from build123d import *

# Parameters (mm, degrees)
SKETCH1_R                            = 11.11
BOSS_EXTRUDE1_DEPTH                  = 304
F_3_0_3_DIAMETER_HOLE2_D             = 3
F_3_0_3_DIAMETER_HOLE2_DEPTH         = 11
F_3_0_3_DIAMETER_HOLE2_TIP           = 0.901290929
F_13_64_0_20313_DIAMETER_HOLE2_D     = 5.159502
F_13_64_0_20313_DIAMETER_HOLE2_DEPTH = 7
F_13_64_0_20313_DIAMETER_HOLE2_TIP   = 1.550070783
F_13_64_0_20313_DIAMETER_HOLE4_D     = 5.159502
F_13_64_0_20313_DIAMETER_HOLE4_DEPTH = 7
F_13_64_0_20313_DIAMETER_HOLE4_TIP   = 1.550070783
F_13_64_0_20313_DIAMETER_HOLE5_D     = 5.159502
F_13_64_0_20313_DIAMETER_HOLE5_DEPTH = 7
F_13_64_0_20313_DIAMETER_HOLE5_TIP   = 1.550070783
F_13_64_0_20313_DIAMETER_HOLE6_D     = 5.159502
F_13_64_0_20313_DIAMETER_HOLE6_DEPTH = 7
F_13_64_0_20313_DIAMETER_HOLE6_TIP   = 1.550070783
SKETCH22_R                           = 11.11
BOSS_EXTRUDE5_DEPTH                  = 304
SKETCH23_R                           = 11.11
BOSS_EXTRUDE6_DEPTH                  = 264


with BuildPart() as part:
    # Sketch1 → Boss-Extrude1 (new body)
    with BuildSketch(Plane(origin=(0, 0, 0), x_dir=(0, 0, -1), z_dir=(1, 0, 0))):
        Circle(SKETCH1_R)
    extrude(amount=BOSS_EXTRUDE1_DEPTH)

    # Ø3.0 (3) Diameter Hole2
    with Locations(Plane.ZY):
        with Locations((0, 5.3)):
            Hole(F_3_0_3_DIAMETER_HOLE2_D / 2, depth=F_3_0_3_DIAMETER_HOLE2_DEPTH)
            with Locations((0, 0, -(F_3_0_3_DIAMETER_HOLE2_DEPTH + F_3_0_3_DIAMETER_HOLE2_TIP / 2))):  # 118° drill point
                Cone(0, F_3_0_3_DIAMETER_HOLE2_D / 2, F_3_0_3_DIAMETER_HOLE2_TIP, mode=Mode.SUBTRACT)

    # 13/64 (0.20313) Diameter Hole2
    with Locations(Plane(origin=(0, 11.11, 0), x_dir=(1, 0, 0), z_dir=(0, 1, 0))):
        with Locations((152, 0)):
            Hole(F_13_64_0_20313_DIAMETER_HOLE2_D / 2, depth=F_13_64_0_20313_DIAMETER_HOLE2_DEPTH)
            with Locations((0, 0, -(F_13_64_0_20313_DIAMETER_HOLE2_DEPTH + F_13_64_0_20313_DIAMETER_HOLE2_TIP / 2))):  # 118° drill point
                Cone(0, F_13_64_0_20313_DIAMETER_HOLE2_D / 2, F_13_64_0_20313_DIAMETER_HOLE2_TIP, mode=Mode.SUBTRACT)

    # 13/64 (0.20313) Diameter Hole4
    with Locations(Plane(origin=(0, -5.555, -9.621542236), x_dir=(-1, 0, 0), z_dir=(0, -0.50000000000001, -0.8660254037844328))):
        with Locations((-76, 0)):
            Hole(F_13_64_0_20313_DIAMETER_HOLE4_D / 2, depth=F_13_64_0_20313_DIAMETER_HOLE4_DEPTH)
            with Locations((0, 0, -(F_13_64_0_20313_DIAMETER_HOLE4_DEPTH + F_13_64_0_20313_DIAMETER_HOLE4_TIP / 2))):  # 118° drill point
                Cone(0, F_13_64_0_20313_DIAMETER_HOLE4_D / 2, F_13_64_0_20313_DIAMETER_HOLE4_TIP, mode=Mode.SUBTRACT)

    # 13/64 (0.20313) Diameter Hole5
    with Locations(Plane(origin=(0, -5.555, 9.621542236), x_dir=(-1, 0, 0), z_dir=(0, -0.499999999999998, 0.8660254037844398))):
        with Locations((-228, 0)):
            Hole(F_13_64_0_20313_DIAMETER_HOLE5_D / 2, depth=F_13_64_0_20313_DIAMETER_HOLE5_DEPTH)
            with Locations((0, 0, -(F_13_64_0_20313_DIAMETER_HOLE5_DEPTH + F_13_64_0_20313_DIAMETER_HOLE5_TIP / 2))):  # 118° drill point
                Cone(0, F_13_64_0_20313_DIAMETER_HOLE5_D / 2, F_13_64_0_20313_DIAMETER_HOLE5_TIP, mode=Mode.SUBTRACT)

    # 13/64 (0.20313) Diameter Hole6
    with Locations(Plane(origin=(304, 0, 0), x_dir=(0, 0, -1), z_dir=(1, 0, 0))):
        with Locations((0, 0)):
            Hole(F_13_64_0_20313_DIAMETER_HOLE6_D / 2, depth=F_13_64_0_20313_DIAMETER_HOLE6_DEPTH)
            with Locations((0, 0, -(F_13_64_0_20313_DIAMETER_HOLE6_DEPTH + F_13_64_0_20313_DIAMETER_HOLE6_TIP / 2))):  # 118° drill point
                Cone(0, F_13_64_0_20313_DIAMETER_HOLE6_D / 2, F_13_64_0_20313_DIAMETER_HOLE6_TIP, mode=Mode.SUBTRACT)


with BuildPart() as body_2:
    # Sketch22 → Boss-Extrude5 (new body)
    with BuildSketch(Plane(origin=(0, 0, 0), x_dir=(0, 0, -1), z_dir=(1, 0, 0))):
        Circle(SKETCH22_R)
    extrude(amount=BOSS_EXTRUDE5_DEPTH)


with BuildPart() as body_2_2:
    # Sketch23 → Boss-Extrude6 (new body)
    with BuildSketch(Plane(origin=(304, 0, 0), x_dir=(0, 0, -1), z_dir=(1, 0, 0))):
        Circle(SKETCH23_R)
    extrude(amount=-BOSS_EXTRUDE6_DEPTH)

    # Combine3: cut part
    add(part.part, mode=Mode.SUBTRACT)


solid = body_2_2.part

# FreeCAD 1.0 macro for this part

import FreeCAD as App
import Part
import Sketcher

V = App.Vector
Q = App.Units.Quantity

doc = App.newDocument("Part")
params = doc.addObject("Spreadsheet::Sheet", "Params")
for row, (alias, value) in enumerate([
    ("sketch1_diameter", "22.22 mm"),
    ("pad1_length", "304 mm"),
    ("sketch2_diameter", "3 mm"),
    ("hole_diameter", "3 mm"),
    ("hole_depth", "11 mm"),
    ("hole2_diameter", "5.159502 mm"),
    ("hole2_depth", "7 mm"),
    ("hole3_diameter", "5.159502 mm"),
    ("hole3_depth", "7 mm"),
    ("hole4_diameter", "5.159502 mm"),
    ("hole4_depth", "7 mm"),
    ("hole5_diameter", "5.159502 mm"),
    ("hole5_depth", "7 mm"),
    ("sketch7_diameter", "22.22 mm"),
    ("pad2_length", "304 mm"),
    ("sketch8_diameter", "22.22 mm"),
    ("pad3_length", "264 mm"),
], start=1):
    params.set(f"A{row}", alias)
    params.set(f"B{row}", "=" + value)
    params.setAlias(f"B{row}", alias)

body = doc.addObject("PartDesign::Body", "Body")

sketch1 = doc.addObject("Sketcher::SketchObject", "Sketch")
body.addObject(sketch1)
sketch1.AttachmentSupport = (doc.YZ_Plane, [""])
sketch1.MapMode = "FlatFace"
sketch1.addGeometry(Part.Circle(V(0, 0, 0), V(0, 0, 1), 11), False)
sketch1.addConstraint(Sketcher.Constraint("Coincident", 0, 3, -1, 1))
sketch1.addConstraint(Sketcher.Constraint("Diameter", 0, Q("22.22 mm")))
sketch1.setExpression("Constraints[1]", "Params.sketch1_diameter")
pad1 = doc.addObject("PartDesign::Pad", "Pad")
body.addObject(pad1)
pad1.Profile = sketch1
pad1.setExpression("Length", "Params.pad1_length")

sketch2 = doc.addObject("Sketcher::SketchObject", "Sketch001")
body.addObject(sketch2)
sketch2.AttachmentSupport = (doc.YZ_Plane, [""])
sketch2.MapMode = "FlatFace"
sketch2.addGeometry(Part.Circle(V(5.3, 0, 0), V(0, 0, 1), 1.5), False)
sketch2.addConstraint(Sketcher.Constraint("PointOnObject", 0, 3, -1))
sketch2.addConstraint(Sketcher.Constraint("Diameter", 0, Q("3 mm")))
sketch2.addConstraint(Sketcher.Constraint("DistanceX", -1, 1, 0, 3, Q("5.3 mm")))
sketch2.setExpression("Constraints[1]", "Params.sketch2_diameter")
doc.recompute()
hole = doc.addObject("PartDesign::Hole", "Hole")
body.addObject(hole)
hole.Profile = sketch2
hole.ThreadType = "None"
hole.setExpression("Diameter", "Params.hole_diameter")
hole.DepthType = "Dimension"
hole.setExpression("Depth", "Params.hole_depth")
hole.DrillPoint = "Angled"
hole.DrillPointAngle = 118
hole.Reversed = True

sketch3 = doc.addObject("Sketcher::SketchObject", "Sketch002")
body.addObject(sketch3)
sketch3.AttachmentSupport = (doc.XZ_Plane, [""])
sketch3.MapMode = "FlatFace"
sketch3.AttachmentOffset = App.Placement(V(0, 0, -11.11), App.Rotation())
sketch3.addGeometry(Part.Circle(V(152, 0, 0), V(0, 0, 1), 2.6), False)
sketch3.addConstraint(Sketcher.Constraint("PointOnObject", 0, 3, -1))
sketch3.addConstraint(Sketcher.Constraint("DistanceX", -1, 1, 0, 3, Q("152 mm")))
sketch3.addConstraint(Sketcher.Constraint("Diameter", 0, Q("5.159502 mm")))
doc.recompute()
hole2 = doc.addObject("PartDesign::Hole", "Hole001")
body.addObject(hole2)
hole2.Profile = sketch3
hole2.ThreadType = "None"
hole2.setExpression("Diameter", "Params.hole2_diameter")
hole2.DepthType = "Dimension"
hole2.setExpression("Depth", "Params.hole2_depth")
hole2.DrillPoint = "Angled"
hole2.DrillPointAngle = 118
hole2.Reversed = True

sketch4 = doc.addObject("Sketcher::SketchObject", "Sketch003")
body.addObject(sketch4)
sketch4.Placement = App.Placement(V(0, -5.555, -9.621542), App.Rotation(V(-1, 0, 0), V(0, 0.866025404, -0.5), V(0, -0.5, -0.866025404), "ZXY"))
sketch4.addGeometry(Part.Circle(V(-76, 0, 0), V(0, 0, 1), 2.6), False)
sketch4.addConstraint(Sketcher.Constraint("PointOnObject", 0, 3, -1))
sketch4.addConstraint(Sketcher.Constraint("DistanceX", 0, 3, -1, 1, Q("76 mm")))
sketch4.addConstraint(Sketcher.Constraint("Diameter", 0, Q("5.159502 mm")))
doc.recompute()
hole3 = doc.addObject("PartDesign::Hole", "Hole002")
body.addObject(hole3)
hole3.Profile = sketch4
hole3.ThreadType = "None"
hole3.setExpression("Diameter", "Params.hole3_diameter")
hole3.DepthType = "Dimension"
hole3.setExpression("Depth", "Params.hole3_depth")
hole3.DrillPoint = "Angled"
hole3.DrillPointAngle = 118

sketch5 = doc.addObject("Sketcher::SketchObject", "Sketch004")
body.addObject(sketch5)
sketch5.Placement = App.Placement(V(0, -5.555, 9.621542), App.Rotation(V(-1, 0, 0), V(0, -0.866025404, -0.5), V(0, -0.5, 0.866025404), "ZXY"))
sketch5.addGeometry(Part.Circle(V(-228, 0, 0), V(0, 0, 1), 2.6), False)
sketch5.addConstraint(Sketcher.Constraint("PointOnObject", 0, 3, -1))
sketch5.addConstraint(Sketcher.Constraint("DistanceX", 0, 3, -1, 1, Q("228 mm")))
sketch5.addConstraint(Sketcher.Constraint("Diameter", 0, Q("5.159502 mm")))
doc.recompute()
hole4 = doc.addObject("PartDesign::Hole", "Hole003")
body.addObject(hole4)
hole4.Profile = sketch5
hole4.ThreadType = "None"
hole4.setExpression("Diameter", "Params.hole4_diameter")
hole4.DepthType = "Dimension"
hole4.setExpression("Depth", "Params.hole4_depth")
hole4.DrillPoint = "Angled"
hole4.DrillPointAngle = 118

sketch6 = doc.addObject("Sketcher::SketchObject", "Sketch005")
body.addObject(sketch6)
sketch6.AttachmentSupport = (doc.YZ_Plane, [""])
sketch6.MapMode = "FlatFace"
sketch6.AttachmentOffset = App.Placement(V(0, 0, 304), App.Rotation())
sketch6.addGeometry(Part.Circle(V(0, 0, 0), V(0, 0, 1), 2.6), False)
sketch6.addConstraint(Sketcher.Constraint("Coincident", 0, 3, -1, 1))
sketch6.addConstraint(Sketcher.Constraint("Diameter", 0, Q("5.159502 mm")))
doc.recompute()
hole5 = doc.addObject("PartDesign::Hole", "Hole004")
body.addObject(hole5)
hole5.Profile = sketch6
hole5.ThreadType = "None"
hole5.setExpression("Diameter", "Params.hole5_diameter")
hole5.DepthType = "Dimension"
hole5.setExpression("Depth", "Params.hole5_depth")
hole5.DrillPoint = "Angled"
hole5.DrillPointAngle = 118
body2 = doc.addObject("PartDesign::Body", "Body001")

sketch7 = doc.addObject("Sketcher::SketchObject", "Sketch006")
body2.addObject(sketch7)
sketch7.AttachmentSupport = (doc.getObject("YZ_Plane001"), [""])
sketch7.MapMode = "FlatFace"
sketch7.addGeometry(Part.Circle(V(0, 0, 0), V(0, 0, 1), 11), False)
sketch7.addConstraint(Sketcher.Constraint("Coincident", 0, 3, -1, 1))
sketch7.addConstraint(Sketcher.Constraint("Diameter", 0, Q("22.22 mm")))
sketch7.setExpression("Constraints[1]", "Params.sketch7_diameter")
pad2 = doc.addObject("PartDesign::Pad", "Pad001")
body2.addObject(pad2)
pad2.Profile = sketch7
pad2.setExpression("Length", "Params.pad2_length")
body3 = doc.addObject("PartDesign::Body", "Body002")
body3.AllowCompound = True

sketch8 = doc.addObject("Sketcher::SketchObject", "Sketch007")
body3.addObject(sketch8)
sketch8.AttachmentSupport = (doc.getObject("YZ_Plane002"), [""])
sketch8.MapMode = "FlatFace"
sketch8.AttachmentOffset = App.Placement(V(0, 0, 304), App.Rotation())
sketch8.addGeometry(Part.Circle(V(0, 0, 0), V(0, 0, 1), 11), False)
sketch8.addConstraint(Sketcher.Constraint("Coincident", 0, 3, -1, 1))
sketch8.addConstraint(Sketcher.Constraint("Diameter", 0, Q("22.22 mm")))
sketch8.setExpression("Constraints[1]", "Params.sketch8_diameter")
pad3 = doc.addObject("PartDesign::Pad", "Pad002")
body3.addObject(pad3)
pad3.Profile = sketch8
pad3.setExpression("Length", "Params.pad3_length")
pad3.Reversed = True
doc.recompute()

boolean = doc.addObject("PartDesign::Boolean", "Boolean")
body3.addObject(boolean)
boolean.Type = "Cut"
boolean.addObjects([body])
body2.Visibility = False

doc.recompute()
